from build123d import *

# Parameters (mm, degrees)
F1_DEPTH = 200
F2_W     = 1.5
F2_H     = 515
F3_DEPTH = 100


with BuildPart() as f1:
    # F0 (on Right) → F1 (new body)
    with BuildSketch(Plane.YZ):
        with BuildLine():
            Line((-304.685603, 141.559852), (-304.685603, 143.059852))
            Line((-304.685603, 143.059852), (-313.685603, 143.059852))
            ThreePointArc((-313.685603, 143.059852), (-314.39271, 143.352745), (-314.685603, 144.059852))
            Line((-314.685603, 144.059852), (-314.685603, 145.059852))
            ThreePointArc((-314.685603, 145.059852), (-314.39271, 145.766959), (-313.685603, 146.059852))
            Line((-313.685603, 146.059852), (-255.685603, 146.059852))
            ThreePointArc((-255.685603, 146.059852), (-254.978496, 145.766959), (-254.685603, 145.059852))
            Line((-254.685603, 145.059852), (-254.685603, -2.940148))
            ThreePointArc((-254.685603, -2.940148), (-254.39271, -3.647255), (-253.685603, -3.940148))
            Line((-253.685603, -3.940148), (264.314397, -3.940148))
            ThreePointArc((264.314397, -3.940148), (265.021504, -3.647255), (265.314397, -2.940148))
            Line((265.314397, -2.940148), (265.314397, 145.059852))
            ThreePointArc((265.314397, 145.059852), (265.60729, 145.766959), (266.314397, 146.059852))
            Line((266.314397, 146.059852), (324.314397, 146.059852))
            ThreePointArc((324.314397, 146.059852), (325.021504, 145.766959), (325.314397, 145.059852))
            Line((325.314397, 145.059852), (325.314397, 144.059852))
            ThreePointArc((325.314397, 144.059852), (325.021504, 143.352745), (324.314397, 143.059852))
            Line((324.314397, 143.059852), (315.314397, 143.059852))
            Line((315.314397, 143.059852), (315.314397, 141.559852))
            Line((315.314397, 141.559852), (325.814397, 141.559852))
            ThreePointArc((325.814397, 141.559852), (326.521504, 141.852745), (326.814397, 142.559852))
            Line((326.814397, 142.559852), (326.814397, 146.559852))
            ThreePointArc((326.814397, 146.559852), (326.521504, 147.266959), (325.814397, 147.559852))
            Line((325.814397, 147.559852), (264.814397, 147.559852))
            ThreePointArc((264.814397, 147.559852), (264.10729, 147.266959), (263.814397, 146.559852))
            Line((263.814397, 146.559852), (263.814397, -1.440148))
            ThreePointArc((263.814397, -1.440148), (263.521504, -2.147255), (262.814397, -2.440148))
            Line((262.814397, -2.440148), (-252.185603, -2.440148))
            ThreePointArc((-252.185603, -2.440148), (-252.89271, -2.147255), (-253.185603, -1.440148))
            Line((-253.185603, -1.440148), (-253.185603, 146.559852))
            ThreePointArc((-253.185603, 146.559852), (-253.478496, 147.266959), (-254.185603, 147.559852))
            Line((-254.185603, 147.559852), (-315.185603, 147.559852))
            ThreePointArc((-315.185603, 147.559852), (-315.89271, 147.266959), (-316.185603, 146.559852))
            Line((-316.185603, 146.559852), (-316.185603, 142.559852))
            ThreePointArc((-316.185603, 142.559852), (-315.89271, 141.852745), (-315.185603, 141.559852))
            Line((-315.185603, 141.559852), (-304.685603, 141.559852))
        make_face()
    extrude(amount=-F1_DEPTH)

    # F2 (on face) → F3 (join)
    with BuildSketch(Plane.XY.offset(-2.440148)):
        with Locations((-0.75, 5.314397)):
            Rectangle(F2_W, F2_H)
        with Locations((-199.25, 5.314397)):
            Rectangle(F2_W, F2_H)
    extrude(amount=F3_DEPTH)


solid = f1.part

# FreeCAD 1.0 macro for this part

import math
import FreeCAD as App
import Part
import Sketcher
from FreeCAD import Vector
Q = App.Units.Quantity


def add_polygon(sketch, points):
    """Adds a closed chain of lines whose ends are joined by coincident constraints."""
    first, n = sketch.GeometryCount, len(points)
    for a, b in zip(points, points[1:] + points[:1]):
        sketch.addGeometry(Part.LineSegment(App.Vector(*a, 0), App.Vector(*b, 0)), False)
    for i in range(n):
        sketch.addConstraint(Sketcher.Constraint("Coincident", first + i, 2, first + (i + 1) % n, 1))

doc = App.newDocument("Part")
params = doc.addObject("Spreadsheet::Sheet", "Params")
for row, (alias, value) in enumerate([
    ("sketch1_radius", "0.999999 mm"),
    ("sketch1_width", "9 mm"),
    ("sketch1_width2", "58 mm"),
    ("sketch1_width3", "518 mm"),
    ("sketch1_width4", "61 mm"),
    ("pad1_length", "200 mm"),
    ("sketch2_height", "515 mm"),
    ("sketch2_width", "1.5 mm"),
    ("pad2_length", "100 mm"),
], start=1):
    params.set(f"A{row}", alias)
    params.set(f"B{row}", "=" + value)
    params.setAlias(f"B{row}", alias)

body = doc.addObject("PartDesign::Body", "Body")

# Sketch on YZ plane
sketch1 = body.newObject("Sketcher::SketchObject", "Sketch")
sketch1.AttachmentSupport = (doc.getObject("YZ_Plane"), [""])
sketch1.MapMode = "FlatFace"
sketch1.addGeometry([
    Part.LineSegment(Vector(-304.685603, 141.559852, 0), Vector(-304.685603, 143.059852, 0)),  # 0
    Part.LineSegment(Vector(-304.685603, 143.059852, 0), Vector(-313.685603, 143.059852, 0)),  # 1
    Part.ArcOfCircle(Part.Circle(Vector(-313.685604, 144.059851, 0), Vector(0, 0, 1), 0.999999), math.radians(179.999957), math.radians(270.000043)),  # 2
    Part.LineSegment(Vector(-314.685603, 144.059852, 0), Vector(-314.685603, 145.059852, 0)),  # 3
    Part.ArcOfCircle(Part.Circle(Vector(-313.685604, 145.059853, 0), Vector(0, 0, 1), 0.999999), math.radians(89.999957), math.radians(180.000043)),  # 4
    Part.LineSegment(Vector(-313.685603, 146.059852, 0), Vector(-255.685603, 146.059852, 0)),  # 5
    Part.ArcOfCircle(Part.Circle(Vector(-255.685602, 145.059853, 0), Vector(0, 0, 1), 0.999999), math.radians(-0.000043), math.radians(90.000043)),  # 6
    Part.LineSegment(Vector(-254.685603, 145.059852, 0), Vector(-254.685603, -2.940148, 0)),  # 7
    Part.ArcOfCircle(Part.Circle(Vector(-253.685604, -2.940149, 0), Vector(0, 0, 1), 0.999999), math.radians(179.999957), math.radians(270.000043)),  # 8
    Part.LineSegment(Vector(-253.685603, -3.940148, 0), Vector(264.314397, -3.940148, 0)),  # 9
    Part.ArcOfCircle(Part.Circle(Vector(264.314398, -2.940149, 0), Vector(0, 0, 1), 0.999999), math.radians(-90.000043), math.radians(0.000043)),  # 10
    Part.LineSegment(Vector(265.314397, -2.940148, 0), Vector(265.314397, 145.059852, 0)),  # 11
    Part.ArcOfCircle(Part.Circle(Vector(266.314396, 145.059853, 0), Vector(0, 0, 1), 0.999999), math.radians(89.999957), math.radians(180.000043)),  # 12
    Part.LineSegment(Vector(266.314397, 146.059852, 0), Vector(324.314397, 146.059852, 0)),  # 13
    Part.ArcOfCircle(Part.Circle(Vector(324.314398, 145.059853, 0), Vector(0, 0, 1), 0.999999), math.radians(-0.000043), math.radians(90.000043)),  # 14
    Part.LineSegment(Vector(325.314397, 145.059852, 0), Vector(325.314397, 144.059852, 0)),  # 15
    Part.ArcOfCircle(Part.Circle(Vector(324.314398, 144.059851, 0), Vector(0, 0, 1), 0.999999), math.radians(-90.000043), math.radians(0.000043)),  # 16
    Part.LineSegment(Vector(324.314397, 143.059852, 0), Vector(315.314397, 143.059852, 0)),  # 17
    Part.LineSegment(Vector(315.314397, 143.059852, 0), Vector(315.314397, 141.559852, 0)),  # 18
    Part.LineSegment(Vector(315.314397, 141.559852, 0), Vector(325.814397, 141.559852, 0)),  # 19
    Part.ArcOfCircle(Part.Circle(Vector(325.814398, 142.559851, 0), Vector(0, 0, 1), 0.999999), math.radians(-90.000043), math.radians(0.000043)),  # 20
    Part.LineSegment(Vector(326.814397, 142.559852, 0), Vector(326.814397, 146.559852, 0)),  # 21
    Part.ArcOfCircle(Part.Circle(Vector(325.814398, 146.559853, 0), Vector(0, 0, 1), 0.999999), math.radians(-0.000043), math.radians(90.000043)),  # 22
    Part.LineSegment(Vector(325.814397, 147.559852, 0), Vector(264.814397, 147.559852, 0)),  # 23
    Part.ArcOfCircle(Part.Circle(Vector(264.814396, 146.559853, 0), Vector(0, 0, 1), 0.999999), math.radians(89.999957), math.radians(180.000043)),  # 24
    Part.LineSegment(Vector(263.814397, 146.559852, 0), Vector(263.814397, -1.440148, 0)),  # 25
    Part.ArcOfCircle(Part.Circle(Vector(262.814398, -1.440149, 0), Vector(0, 0, 1), 0.999999), math.radians(-90.000043), math.radians(0.000043)),  # 26
    Part.LineSegment(Vector(262.814397, -2.440148, 0), Vector(-252.185603, -2.440148, 0)),  # 27
    Part.ArcOfCircle(Part.Circle(Vector(-252.185604, -1.440149, 0), Vector(0, 0, 1), 0.999999), math.radians(179.999957), math.radians(270.000043)),  # 28
    Part.LineSegment(Vector(-253.185603, -1.440148, 0), Vector(-253.185603, 146.559852, 0)),  # 29
    Part.ArcOfCircle(Part.Circle(Vector(-254.185602, 146.559853, 0), Vector(0, 0, 1), 0.999999), math.radians(-0.000043), math.radians(90.000043)),  # 30
    Part.LineSegment(Vector(-254.185603, 147.559852, 0), Vector(-315.185603, 147.559852, 0)),  # 31
    Part.ArcOfCircle(Part.Circle(Vector(-315.185604, 146.559853, 0), Vector(0, 0, 1), 0.999999), math.radians(89.999957), math.radians(180.000043)),  # 32
    Part.LineSegment(Vector(-316.185603, 146.559852, 0), Vector(-316.185603, 142.559852, 0)),  # 33
    Part.ArcOfCircle(Part.Circle(Vector(-315.185604, 142.559851, 0), Vector(0, 0, 1), 0.999999), math.radians(179.999957), math.radians(270.000043)),  # 34
    Part.LineSegment(Vector(-315.185603, 141.559852, 0), Vector(-304.685603, 141.559852, 0)),  # 35
], False)
sketch1.addConstraint([
    Sketcher.Constraint("Coincident", 0, 2, 1, 1),
    Sketcher.Constraint("Tangent", 1, 2, 2, 2),
    Sketcher.Constraint("Tangent", 2, 1, 3, 1),
    Sketcher.Constraint("Tangent", 3, 2, 4, 2),
    Sketcher.Constraint("Tangent", 4, 1, 5, 1),
    Sketcher.Constraint("Tangent", 5, 2, 6, 2),
    Sketcher.Constraint("Tangent", 6, 1, 7, 1),
    Sketcher.Constraint("Tangent", 7, 2, 8, 1),
    Sketcher.Constraint("Tangent", 8, 2, 9, 1),
    Sketcher.Constraint("Tangent", 9, 2, 10, 1),
    Sketcher.Constraint("Tangent", 10, 2, 11, 1),
    Sketcher.Constraint("Tangent", 11, 2, 12, 2),
    Sketcher.Constraint("Tangent", 12, 1, 13, 1),
    Sketcher.Constraint("Tangent", 13, 2, 14, 2),
    Sketcher.Constraint("Tangent", 14, 1, 15, 1),
    Sketcher.Constraint("Tangent", 15, 2, 16, 2),
    Sketcher.Constraint("Tangent", 16, 1, 17, 1),
    Sketcher.Constraint("Coincident", 17, 2, 18, 1),
    Sketcher.Constraint("Coincident", 18, 2, 19, 1),
    Sketcher.Constraint("Tangent", 19, 2, 20, 1),
    Sketcher.Constraint("Tangent", 20, 2, 21, 1),
    Sketcher.Constraint("Tangent", 21, 2, 22, 1),
    Sketcher.Constraint("Tangent", 22, 2, 23, 1),
    Sketcher.Constraint("Tangent", 23, 2, 24, 1),
    Sketcher.Constraint("Tangent", 24, 2, 25, 1),
    Sketcher.Constraint("Tangent", 25, 2, 26, 2),
    Sketcher.Constraint("Tangent", 26, 1, 27, 1),
    Sketcher.Constraint("Tangent", 27, 2, 28, 2),
    Sketcher.Constraint("Tangent", 28, 1, 29, 1),
    Sketcher.Constraint("Tangent", 29, 2, 30, 1),
    Sketcher.Constraint("Tangent", 30, 2, 31, 1),
    Sketcher.Constraint("Tangent", 31, 2, 32, 1),
    Sketcher.Constraint("Tangent", 32, 2, 33, 1),
    Sketcher.Constraint("Tangent", 33, 2, 34, 1),
    Sketcher.Constraint("Tangent", 34, 2, 35, 1),
    Sketcher.Constraint("Coincident", 35, 2, 0, 1),
    Sketcher.Constraint("Vertical", 0),
    Sketcher.Constraint("Horizontal", 1),
    Sketcher.Constraint("Vertical", 3),
    Sketcher.Constraint("Horizontal", 5),
    Sketcher.Constraint("Vertical", 7),
    Sketcher.Constraint("Horizontal", 9),
    Sketcher.Constraint("Vertical", 11),
    Sketcher.Constraint("Horizontal", 13),
    Sketcher.Constraint("Vertical", 15),
    Sketcher.Constraint("Horizontal", 17),
    Sketcher.Constraint("Vertical", 18),
    Sketcher.Constraint("Horizontal", 19),
    Sketcher.Constraint("Vertical", 21),
    Sketcher.Constraint("Horizontal", 23),
    Sketcher.Constraint("Vertical", 25),
    Sketcher.Constraint("Horizontal", 27),
    Sketcher.Constraint("Vertical", 29),
    Sketcher.Constraint("Horizontal", 31),
    Sketcher.Constraint("Vertical", 33),
    Sketcher.Constraint("Horizontal", 35),
    Sketcher.Constraint("Equal", 2, 4),
    Sketcher.Constraint("Equal", 4, 6),
    Sketcher.Constraint("Equal", 6, 8),
    Sketcher.Constraint("Equal", 8, 10),
    Sketcher.Constraint("Equal", 10, 12),
    Sketcher.Constraint("Equal", 12, 14),
    Sketcher.Constraint("Equal", 14, 16),
    Sketcher.Constraint("Equal", 16, 20),
    Sketcher.Constraint("Equal", 20, 22),
    Sketcher.Constraint("Equal", 22, 24),
    Sketcher.Constraint("Equal", 24, 26),
    Sketcher.Constraint("Equal", 26, 28),
    Sketcher.Constraint("Equal", 28, 30),
    Sketcher.Constraint("Equal", 30, 32),
    Sketcher.Constraint("Equal", 32, 34),
    Sketcher.Constraint("Horizontal", 6, 3, 12, 3),
    Sketcher.Constraint("Horizontal", 2, 3, 16, 3),
    Sketcher.Constraint("Horizontal", 24, 3, 30, 3),
    Sketcher.Constraint("Horizontal", 20, 3, 34, 3),
    Sketcher.Constraint("Equal", 5, 13),
    Sketcher.Constraint("Equal", 1, 17),
    Sketcher.Constraint("Equal", 23, 31),
    Sketcher.Constraint("Equal", 19, 35),
    Sketcher.Constraint("Equal", 11, 25),
    Sketcher.Constraint("Radius", 2, Q("0.999999 mm")),
    Sketcher.Constraint("DistanceX", 1, 2, 1, 1, Q("9 mm")),
    Sketcher.Constraint("DistanceX", 5, 1, 5, 2, Q("58 mm")),
    Sketcher.Constraint("DistanceX", 9, 1, 9, 2, Q("518 mm")),
    Sketcher.Constraint("DistanceX", 23, 2, 23, 1, Q("61 mm")),
    Sketcher.Constraint("DistanceX", 27, 2, 27, 1, Q("515 mm")),
    Sketcher.Constraint("DistanceY", 3, 1, 3, 2, Q("1 mm")),
    Sketcher.Constraint("DistanceY", 7, 2, 7, 1, Q("148 mm")),
    Sketcher.Constraint("DistanceY", 21, 1, 21, 2, Q("4 mm")),
    Sketcher.Constraint("DistanceY", 0, 1, 0, 2, Q("1.5 mm")),
    Sketcher.Constraint("DistanceY", -1, 1, 2, 3, Q("144.059851 mm")),
    Sketcher.Constraint("DistanceX", 2, 3, -1, 1, Q("313.685604 mm")),
])
sketch1.setExpression("Constraints[80]", "Params.sketch1_radius")
sketch1.setExpression("Constraints[81]", "Params.sketch1_width")
sketch1.setExpression("Constraints[82]", "Params.sketch1_width2")
sketch1.setExpression("Constraints[83]", "Params.sketch1_width3")
sketch1.setExpression("Constraints[84]", "Params.sketch1_width4")
pad1 = body.newObject("PartDesign::Pad", "Pad")
pad1.Profile = sketch1
pad1.setExpression("Length", "Params.pad1_length")
pad1.Reversed = True

# Sketch on XY plane
sketch2 = body.newObject("Sketcher::SketchObject", "Sketch001")
sketch2.AttachmentSupport = (doc.getObject("XY_Plane"), [""])
sketch2.MapMode = "FlatFace"
sketch2.AttachmentOffset = App.Placement(Vector(0, 0, -2.440148), App.Rotation())
add_polygon(sketch2, [(-1.5, 262.814397), (-1.5, -252.185603), (0, -252.185603), (0, 262.814397)])  # lines 0-3
add_polygon(sketch2, [(-200, 262.814397), (-200, -252.185603), (-198.5, -252.185603), (-198.5, 262.814397)])  # lines 4-7
sketch2.addConstraint([
    Sketcher.Constraint("Vertical", 0),
    Sketcher.Constraint("Horizontal", 1),
    Sketcher.Constraint("Vertical", 2),
    Sketcher.Constraint("Horizontal", 3),
    Sketcher.Constraint("Vertical", 4),
    Sketcher.Constraint("Horizontal", 5),
    Sketcher.Constraint("Vertical", 6),
    Sketcher.Constraint("Horizontal", 7),
    Sketcher.Constraint("PointOnObject", 1, 2, -2),
    Sketcher.Constraint("Horizontal", 1, 2, 4, 2),
    Sketcher.Constraint("Horizontal", 3, 2, 6, 2),
    Sketcher.Constraint("Equal", 3, 5),
    Sketcher.Constraint("DistanceY", 0, 2, 0, 1, Q("515 mm")),
    Sketcher.Constraint("DistanceX", 1, 1, 1, 2, Q("1.5 mm")),
    Sketcher.Constraint("DistanceX", 4, 2, -1, 1, Q("200 mm")),
    Sketcher.Constraint("DistanceY", 0, 2, -1, 1, Q("252.185603 mm")),
])
sketch2.setExpression("Constraints[20]", "Params.sketch2_height")
sketch2.setExpression("Constraints[21]", "Params.sketch2_width")
pad2 = body.newObject("PartDesign::Pad", "Pad001")
pad2.Profile = sketch2
pad2.setExpression("Length", "Params.pad2_length")

doc.recompute()
